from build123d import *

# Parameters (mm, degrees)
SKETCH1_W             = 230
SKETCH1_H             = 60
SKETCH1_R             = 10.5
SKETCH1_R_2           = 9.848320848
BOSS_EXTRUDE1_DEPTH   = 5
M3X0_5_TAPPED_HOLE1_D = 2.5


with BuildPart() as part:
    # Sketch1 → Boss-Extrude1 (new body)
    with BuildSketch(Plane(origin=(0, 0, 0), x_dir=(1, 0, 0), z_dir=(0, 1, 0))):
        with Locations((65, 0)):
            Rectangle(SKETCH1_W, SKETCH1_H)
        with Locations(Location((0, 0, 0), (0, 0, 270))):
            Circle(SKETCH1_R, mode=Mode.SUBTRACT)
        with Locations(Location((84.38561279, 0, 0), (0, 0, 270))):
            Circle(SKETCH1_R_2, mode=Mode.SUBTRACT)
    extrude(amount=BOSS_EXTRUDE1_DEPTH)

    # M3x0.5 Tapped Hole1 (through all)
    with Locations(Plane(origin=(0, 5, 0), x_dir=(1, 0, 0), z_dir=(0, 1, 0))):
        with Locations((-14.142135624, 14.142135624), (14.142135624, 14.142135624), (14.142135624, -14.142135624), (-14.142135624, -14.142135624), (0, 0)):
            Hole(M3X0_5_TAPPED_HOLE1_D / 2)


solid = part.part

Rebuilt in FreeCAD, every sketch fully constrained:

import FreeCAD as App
import Part
import Sketcher

V = App.Vector


def add_polygon(sketch, points):
    """Adds a closed chain of lines whose ends are joined by coincident constraints."""
    first, n = sketch.GeometryCount, len(points)
    for a, b in zip(points, points[1:] + points[:1]):
        sketch.addGeometry(Part.LineSegment(App.Vector(*a, 0), App.Vector(*b, 0)), False)
    for i in range(n):
        sketch.addConstraint(Sketcher.Constraint("Coincident", first + i, 2, first + (i + 1) % n, 1))

doc = App.newDocument("Part")
body = doc.addObject("PartDesign::Body", "Body")

# Sketch on XZ plane
sketch1 = body.newObject("Sketcher::SketchObject", "Sketch")
sketch1.AttachmentSupport = (doc.getObject("XZ_Plane"), [""])
sketch1.MapMode = "FlatFace"
add_polygon(sketch1, [(-50, -30), (-50, 30), (180, 30), (180, -30)])  # lines 0-3
sketch1.addGeometry(Part.Circle(V(0, 0, 0), V(0, 0, 1), 10.5), False)  # 4
sketch1.addGeometry(Part.Circle(V(84.385613, 0, 0), V(0, 0, 1), 9.848321), False)  # 5
sketch1.addConstraint([
    Sketcher.Constraint("Vertical", 0),
    Sketcher.Constraint("Horizontal", 1),
    Sketcher.Constraint("Vertical", 2),
    Sketcher.Constraint("Horizontal", 3),
    Sketcher.Constraint("Coincident", 4, 3, -1, 1),
    Sketcher.Constraint("PointOnObject", 5, 3, -1),
    Sketcher.Constraint("Diameter", 4, 21.0),
    Sketcher.Constraint("DistanceX", 1, 1, 1, 2, 230.0),
    Sketcher.Constraint("DistanceY", 0, 1, 0, 2, 60.0),
    Sketcher.Constraint("DistanceX", 0, 2, -1, 1, 50.0),
    Sketcher.Constraint("DistanceY", -1, 1, 0, 2, 30.0),
    Sketcher.Constraint("Diameter", 5, 19.696642),
    Sketcher.Constraint("DistanceX", -1, 1, 5, 3, 84.385613),
])
pad1 = body.newObject("PartDesign::Pad", "Pad")
pad1.Profile = sketch1
pad1.Length = 5
pad1.Reversed = True

# Sketch on XZ plane
sketch2 = body.newObject("Sketcher::SketchObject", "Sketch001")
sketch2.AttachmentSupport = (doc.getObject("XZ_Plane"), [""])
sketch2.MapMode = "FlatFace"
sketch2.AttachmentOffset = App.Placement(V(0, 0, -5), App.Rotation())
sketch2.addGeometry([
    Part.Circle(V(-14.142136, -14.142136, 0), V(0, 0, 1), 1.25),  # 0
    Part.Circle(V(14.142136, -14.142136, 0), V(0, 0, 1), 1.25),  # 1
    Part.Circle(V(14.142136, 14.142136, 0), V(0, 0, 1), 1.25),  # 2
    Part.Circle(V(-14.142136, 14.142136, 0), V(0, 0, 1), 1.25),  # 3
    Part.Circle(V(0, 0, 0), V(0, 0, 1), 1.25),  # 4
], False)
sketch2.addConstraint([
    Sketcher.Constraint("Coincident", 4, 3, -1, 1),
    Sketcher.Constraint("Equal", 0, 1),
    Sketcher.Constraint("Equal", 1, 2),
    Sketcher.Constraint("Equal", 2, 3),
    Sketcher.Constraint("Equal", 3, 4),
    Sketcher.Constraint("Symmetric", 0, 3, 2, 3, -1, 1),
    Sketcher.Constraint("Symmetric", 1, 3, 3, 3, -1, 1),
    Sketcher.Constraint("Symmetric", 0, 3, 1, 3, -2),
    Sketcher.Constraint("Diameter", 0, 2.5),
    Sketcher.Constraint("DistanceX", 0, 3, 1, 3, 28.284271),
    Sketcher.Constraint("DistanceY", 1, 3, 2, 3, 28.284271),
])
doc.recompute()
hole = body.newObject("PartDesign::Hole", "Hole")
hole.Profile = sketch2
hole.ThreadType = "None"
hole.Diameter = 2.5
hole.DepthType = "ThroughAll"
hole.Reversed = True

doc.recompute()
